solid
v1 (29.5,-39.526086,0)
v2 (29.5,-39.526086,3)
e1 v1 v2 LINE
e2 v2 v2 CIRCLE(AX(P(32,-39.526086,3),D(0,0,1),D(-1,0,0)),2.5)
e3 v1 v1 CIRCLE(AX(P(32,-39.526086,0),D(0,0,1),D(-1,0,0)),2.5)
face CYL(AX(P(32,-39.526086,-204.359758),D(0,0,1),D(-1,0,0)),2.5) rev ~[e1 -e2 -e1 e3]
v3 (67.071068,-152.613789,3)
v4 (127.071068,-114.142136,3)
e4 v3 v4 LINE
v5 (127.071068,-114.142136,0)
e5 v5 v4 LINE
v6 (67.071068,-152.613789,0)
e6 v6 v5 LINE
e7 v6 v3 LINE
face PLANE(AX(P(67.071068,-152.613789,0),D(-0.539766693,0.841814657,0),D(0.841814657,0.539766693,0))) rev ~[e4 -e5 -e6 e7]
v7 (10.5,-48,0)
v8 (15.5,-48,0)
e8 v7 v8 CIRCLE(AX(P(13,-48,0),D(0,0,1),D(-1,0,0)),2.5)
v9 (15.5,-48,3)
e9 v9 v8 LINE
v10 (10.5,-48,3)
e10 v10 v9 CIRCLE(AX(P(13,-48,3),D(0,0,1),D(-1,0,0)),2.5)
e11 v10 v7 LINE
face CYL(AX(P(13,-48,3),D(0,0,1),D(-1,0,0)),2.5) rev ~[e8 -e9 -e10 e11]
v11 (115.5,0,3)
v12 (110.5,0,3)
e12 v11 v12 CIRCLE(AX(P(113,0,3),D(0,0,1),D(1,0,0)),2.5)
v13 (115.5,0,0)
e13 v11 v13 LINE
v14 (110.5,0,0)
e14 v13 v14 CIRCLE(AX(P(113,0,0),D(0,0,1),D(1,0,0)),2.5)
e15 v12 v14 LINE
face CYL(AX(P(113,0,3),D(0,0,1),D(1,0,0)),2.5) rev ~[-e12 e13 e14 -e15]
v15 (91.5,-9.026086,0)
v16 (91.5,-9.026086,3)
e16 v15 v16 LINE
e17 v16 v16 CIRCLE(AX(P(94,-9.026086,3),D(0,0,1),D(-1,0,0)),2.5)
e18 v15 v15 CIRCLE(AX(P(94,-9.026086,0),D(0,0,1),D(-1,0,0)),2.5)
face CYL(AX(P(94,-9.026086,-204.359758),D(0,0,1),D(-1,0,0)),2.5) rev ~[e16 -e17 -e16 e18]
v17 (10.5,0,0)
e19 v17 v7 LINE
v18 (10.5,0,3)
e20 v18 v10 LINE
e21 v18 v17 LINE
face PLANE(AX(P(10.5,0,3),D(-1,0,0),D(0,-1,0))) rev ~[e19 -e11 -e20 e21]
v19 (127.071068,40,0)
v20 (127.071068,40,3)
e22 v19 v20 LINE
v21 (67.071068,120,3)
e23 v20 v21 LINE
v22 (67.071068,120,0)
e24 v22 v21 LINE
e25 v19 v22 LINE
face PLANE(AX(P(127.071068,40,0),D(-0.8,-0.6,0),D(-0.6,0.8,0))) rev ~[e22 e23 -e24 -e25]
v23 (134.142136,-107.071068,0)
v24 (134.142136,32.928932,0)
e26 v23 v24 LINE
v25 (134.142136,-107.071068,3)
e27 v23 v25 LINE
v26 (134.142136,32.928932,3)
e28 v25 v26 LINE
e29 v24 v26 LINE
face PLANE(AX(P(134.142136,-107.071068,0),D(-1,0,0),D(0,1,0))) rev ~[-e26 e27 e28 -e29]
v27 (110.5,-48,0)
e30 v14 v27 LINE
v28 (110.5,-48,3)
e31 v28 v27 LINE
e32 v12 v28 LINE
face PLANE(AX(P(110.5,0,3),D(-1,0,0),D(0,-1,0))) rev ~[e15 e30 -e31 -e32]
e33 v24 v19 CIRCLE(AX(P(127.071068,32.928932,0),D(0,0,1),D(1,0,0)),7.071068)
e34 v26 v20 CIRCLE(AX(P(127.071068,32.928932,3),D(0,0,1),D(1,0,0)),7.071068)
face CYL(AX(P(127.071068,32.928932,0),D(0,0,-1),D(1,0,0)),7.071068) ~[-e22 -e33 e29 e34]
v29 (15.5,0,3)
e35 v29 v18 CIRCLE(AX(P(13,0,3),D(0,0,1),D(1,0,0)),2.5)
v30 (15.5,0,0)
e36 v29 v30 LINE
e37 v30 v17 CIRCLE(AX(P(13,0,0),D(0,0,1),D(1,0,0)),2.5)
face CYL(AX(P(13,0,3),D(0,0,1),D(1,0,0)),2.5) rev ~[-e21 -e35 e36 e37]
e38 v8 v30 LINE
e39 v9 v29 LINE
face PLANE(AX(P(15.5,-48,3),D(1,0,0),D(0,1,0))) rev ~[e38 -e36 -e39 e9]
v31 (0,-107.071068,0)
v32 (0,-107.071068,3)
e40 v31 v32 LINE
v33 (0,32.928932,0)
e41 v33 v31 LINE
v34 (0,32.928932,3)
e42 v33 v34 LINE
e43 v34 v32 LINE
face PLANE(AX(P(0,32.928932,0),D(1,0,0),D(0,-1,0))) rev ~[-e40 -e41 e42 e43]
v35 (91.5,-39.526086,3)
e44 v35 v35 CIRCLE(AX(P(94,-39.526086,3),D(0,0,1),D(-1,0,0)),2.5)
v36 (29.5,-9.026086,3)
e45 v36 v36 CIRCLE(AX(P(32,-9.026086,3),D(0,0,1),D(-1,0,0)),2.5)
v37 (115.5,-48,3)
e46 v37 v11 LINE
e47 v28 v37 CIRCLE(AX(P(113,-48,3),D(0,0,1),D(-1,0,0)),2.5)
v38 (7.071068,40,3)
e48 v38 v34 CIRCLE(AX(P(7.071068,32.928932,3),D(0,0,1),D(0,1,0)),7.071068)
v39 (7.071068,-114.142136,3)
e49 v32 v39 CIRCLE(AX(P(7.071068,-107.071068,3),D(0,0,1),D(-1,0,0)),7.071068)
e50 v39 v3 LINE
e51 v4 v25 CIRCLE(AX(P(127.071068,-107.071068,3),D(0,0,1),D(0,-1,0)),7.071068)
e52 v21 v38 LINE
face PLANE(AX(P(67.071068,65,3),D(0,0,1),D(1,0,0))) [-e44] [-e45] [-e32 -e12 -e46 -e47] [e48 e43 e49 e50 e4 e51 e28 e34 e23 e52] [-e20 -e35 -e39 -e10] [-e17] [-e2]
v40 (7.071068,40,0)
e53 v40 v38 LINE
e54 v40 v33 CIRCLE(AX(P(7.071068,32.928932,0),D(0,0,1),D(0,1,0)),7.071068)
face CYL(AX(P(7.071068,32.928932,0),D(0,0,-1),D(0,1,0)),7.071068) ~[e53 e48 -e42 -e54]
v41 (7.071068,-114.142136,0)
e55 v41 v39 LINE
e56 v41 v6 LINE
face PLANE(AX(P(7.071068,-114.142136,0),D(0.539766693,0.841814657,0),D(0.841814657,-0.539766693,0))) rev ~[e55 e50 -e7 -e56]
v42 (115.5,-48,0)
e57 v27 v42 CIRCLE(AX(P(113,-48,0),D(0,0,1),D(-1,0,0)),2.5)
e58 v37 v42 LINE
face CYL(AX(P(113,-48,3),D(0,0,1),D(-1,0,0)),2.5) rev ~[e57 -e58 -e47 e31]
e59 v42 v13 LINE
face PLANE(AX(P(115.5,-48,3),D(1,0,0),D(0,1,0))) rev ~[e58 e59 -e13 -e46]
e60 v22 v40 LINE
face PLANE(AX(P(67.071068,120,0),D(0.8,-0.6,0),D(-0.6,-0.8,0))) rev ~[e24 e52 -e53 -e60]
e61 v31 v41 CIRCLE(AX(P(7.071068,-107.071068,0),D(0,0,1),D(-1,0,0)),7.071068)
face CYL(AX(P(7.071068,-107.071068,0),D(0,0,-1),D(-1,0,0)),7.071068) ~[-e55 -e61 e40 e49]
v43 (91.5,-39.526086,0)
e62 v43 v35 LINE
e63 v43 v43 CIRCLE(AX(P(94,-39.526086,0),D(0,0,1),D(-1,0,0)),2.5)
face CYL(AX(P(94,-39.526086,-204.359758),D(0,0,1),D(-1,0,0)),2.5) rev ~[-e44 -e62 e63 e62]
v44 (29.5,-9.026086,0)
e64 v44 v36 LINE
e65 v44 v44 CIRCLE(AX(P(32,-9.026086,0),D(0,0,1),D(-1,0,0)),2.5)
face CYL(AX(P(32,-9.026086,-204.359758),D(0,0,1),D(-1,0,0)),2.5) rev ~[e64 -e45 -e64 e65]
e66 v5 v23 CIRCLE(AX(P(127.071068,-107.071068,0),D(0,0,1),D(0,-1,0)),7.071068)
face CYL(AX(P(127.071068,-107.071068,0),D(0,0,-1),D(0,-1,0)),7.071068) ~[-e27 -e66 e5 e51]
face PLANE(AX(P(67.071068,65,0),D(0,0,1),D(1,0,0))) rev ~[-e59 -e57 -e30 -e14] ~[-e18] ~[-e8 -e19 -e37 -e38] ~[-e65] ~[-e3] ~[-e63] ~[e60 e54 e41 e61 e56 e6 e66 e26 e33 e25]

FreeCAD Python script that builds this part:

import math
import FreeCAD as App
import Part
import Sketcher

V = App.Vector
Q = App.Units.Quantity

doc = App.newDocument("Part")
params = doc.addObject("Spreadsheet::Sheet", "Params")
for row, (alias, value) in enumerate([
    ("sketch1_width", "120 mm"),
    ("sketch1_height", "140 mm"),
    ("pad1_length", "3 mm"),
    ("sketch2_diameter", "5 mm"),
    ("hole_diameter", "5 mm"),
    ("sketch3_diameter", "5 mm"),
    ("hole2_diameter", "5 mm"),
    ("sketch4_radius", "2.5 mm"),
    ("sketch4_height", "48 mm"),
    ("pocket1_length", "25 mm"),
    ("sketch5_radius", "2.5 mm"),
    ("sketch5_height", "48 mm"),
    ("pocket2_length", "25 mm"),
    ("sketch6_width", "120 mm"),
    ("sketch6_length", "100 mm"),
    ("pad2_length", "3 mm"),
], start=1):
    params.set(f"A{row}", alias)
    params.set(f"B{row}", "=" + value)
    params.setAlias(f"B{row}", alias)

body = doc.addObject("PartDesign::Body", "Body")

# Sketch on XY plane
sketch1 = doc.addObject("Sketcher::SketchObject", "Sketch")
body.addObject(sketch1)
sketch1.AttachmentSupport = (doc.XY_Plane, [""])
sketch1.MapMode = "FlatFace"
sketch1.addGeometry([
    Part.ArcOfCircle(Part.Circle(V(7.071068, 32.928932, 0), V(0, 0, 1), 7.071068), math.radians(90), math.radians(180)),  # 0
    Part.LineSegment(V(0, 32.928932, 0), V(0, -107.071068, 0)),  # 1
    Part.ArcOfCircle(Part.Circle(V(7.071068, -107.071068, 0), V(0, 0, 1), 7.071068), math.radians(180), math.radians(270)),  # 2
    Part.LineSegment(V(7.071068, -114.142136, 0), V(127.071068, -114.142136, 0)),  # 3
    Part.ArcOfCircle(Part.Circle(V(127.071068, -107.071068, 0), V(0, 0, 1), 7.071068), math.radians(-90), math.radians(0)),  # 4
    Part.LineSegment(V(134.142136, -107.071068, 0), V(134.142136, 32.928932, 0)),  # 5
    Part.ArcOfCircle(Part.Circle(V(127.071068, 32.928932, 0), V(0, 0, 1), 7.071068), math.radians(0), math.radians(90)),  # 6
    Part.LineSegment(V(127.071068, 40, 0), V(7.071068, 40, 0)),  # 7
], False)
sketch1.addConstraint([
    Sketcher.Constraint("Tangent", 0, 2, 1, 1),
    Sketcher.Constraint("Tangent", 1, 2, 2, 1),
    Sketcher.Constraint("Tangent", 2, 2, 3, 1),
    Sketcher.Constraint("Tangent", 3, 2, 4, 1),
    Sketcher.Constraint("Tangent", 4, 2, 5, 1),
    Sketcher.Constraint("Tangent", 5, 2, 6, 1),
    Sketcher.Constraint("Tangent", 6, 2, 7, 1),
    Sketcher.Constraint("Tangent", 7, 2, 0, 1),
    Sketcher.Constraint("Vertical", 1),
    Sketcher.Constraint("Horizontal", 3),
    Sketcher.Constraint("Vertical", 5),
    Sketcher.Constraint("Horizontal", 7),
    Sketcher.Constraint("Equal", 0, 2),
    Sketcher.Constraint("Equal", 2, 4),
    Sketcher.Constraint("Equal", 4, 6),
    Sketcher.Constraint("PointOnObject", 0, 2, -2),
    Sketcher.Constraint("DistanceX", 3, 1, 3, 2, Q("120 mm")),
    Sketcher.Constraint("DistanceY", 1, 2, 1, 1, Q("140 mm")),
    Sketcher.Constraint("DistanceY", -1, 1, 6, 2, Q("40 mm")),
    Sketcher.Constraint("Radius", 0, Q("7.071068 mm")),
])
sketch1.setExpression("Constraints[16]", "Params.sketch1_width")
sketch1.setExpression("Constraints[17]", "Params.sketch1_height")
pad1 = doc.addObject("PartDesign::Pad", "Pad")
body.addObject(pad1)
pad1.Profile = sketch1
pad1.setExpression("Length", "Params.pad1_length")

# Sketch on XY plane
sketch2 = doc.addObject("Sketcher::SketchObject", "Sketch001")
body.addObject(sketch2)
sketch2.AttachmentSupport = (doc.XY_Plane, [""])
sketch2.MapMode = "FlatFace"
sketch2.addGeometry([
    Part.Circle(V(94, -9.026086, 0), V(0, 0, 1), 2.5),
    Part.Circle(V(32, -9.026086, 0), V(0, 0, 1), 2.5),
], False)
sketch2.addConstraint([
    Sketcher.Constraint("Equal", 0, 1),
    Sketcher.Constraint("Horizontal", 0, 3, 1, 3),
    Sketcher.Constraint("Diameter", 0, Q("5 mm")),
    Sketcher.Constraint("DistanceX", -1, 1, 0, 3, Q("94 mm")),
    Sketcher.Constraint("DistanceX", -1, 1, 1, 3, Q("32 mm")),
    Sketcher.Constraint("DistanceY", 0, 3, -1, 1, Q("9.026086 mm")),
])
sketch2.setExpression("Constraints[2]", "Params.sketch2_diameter")
doc.recompute()
hole = doc.addObject("PartDesign::Hole", "Hole")
body.addObject(hole)
hole.Profile = sketch2
hole.ThreadType = "None"
hole.setExpression("Diameter", "Params.hole_diameter")
hole.DepthType = "ThroughAll"
hole.Reversed = True

# Sketch on XY plane
sketch3 = doc.addObject("Sketcher::SketchObject", "Sketch002")
body.addObject(sketch3)
sketch3.AttachmentSupport = (doc.XY_Plane, [""])
sketch3.MapMode = "FlatFace"
sketch3.addGeometry([
    Part.Circle(V(32, -39.526086, 0), V(0, 0, 1), 2.5),
    Part.Circle(V(94, -39.526086, 0), V(0, 0, 1), 2.5),
], False)
sketch3.addConstraint([
    Sketcher.Constraint("Equal", 0, 1),
    Sketcher.Constraint("Horizontal", 0, 3, 1, 3),
    Sketcher.Constraint("Diameter", 0, Q("5 mm")),
    Sketcher.Constraint("DistanceX", -1, 1, 0, 3, Q("32 mm")),
    Sketcher.Constraint("DistanceX", -1, 1, 1, 3, Q("94 mm")),
    Sketcher.Constraint("DistanceY", 0, 3, -1, 1, Q("39.526086 mm")),
])
sketch3.setExpression("Constraints[2]", "Params.sketch3_diameter")
doc.recompute()
hole2 = doc.addObject("PartDesign::Hole", "Hole001")
body.addObject(hole2)
hole2.Profile = sketch3
hole2.ThreadType = "None"
hole2.setExpression("Diameter", "Params.hole2_diameter")
hole2.DepthType = "ThroughAll"
hole2.Reversed = True

# Sketch on XY plane
sketch4 = doc.addObject("Sketcher::SketchObject", "Sketch003")
body.addObject(sketch4)
sketch4.AttachmentSupport = (doc.XY_Plane, [""])
sketch4.MapMode = "FlatFace"
sketch4.AttachmentOffset = App.Placement(V(0, 0, 3), App.Rotation())
sketch4.addGeometry([
    Part.ArcOfCircle(Part.Circle(V(113, 0, 0), V(0, 0, 1), 2.5), math.radians(0), math.radians(180)),
    Part.LineSegment(V(110.5, 0, 0), V(110.5, -48, 0)),
    Part.ArcOfCircle(Part.Circle(V(113, -48, 0), V(0, 0, 1), 2.5), math.radians(180), math.radians(360)),
    Part.LineSegment(V(115.5, -48, 0), V(115.5, 0, 0)),
], False)
sketch4.addConstraint([
    Sketcher.Constraint("Tangent", 0, 2, 1, 1),
    Sketcher.Constraint("Tangent", 1, 2, 2, 1),
    Sketcher.Constraint("Tangent", 2, 2, 3, 1),
    Sketcher.Constraint("Tangent", 3, 2, 0, 1),
    Sketcher.Constraint("Vertical", 1),
    Sketcher.Constraint("Vertical", 3),
    Sketcher.Constraint("PointOnObject", 0, 3, -1),
    Sketcher.Constraint("Radius", 0, Q("2.5 mm")),
    Sketcher.Constraint("DistanceY", 1, 2, 1, 1, Q("48 mm")),
    Sketcher.Constraint("DistanceX", -1, 1, 0, 3, Q("113 mm")),
])
sketch4.setExpression("Constraints[7]", "Params.sketch4_radius")
sketch4.setExpression("Constraints[8]", "Params.sketch4_height")
pocket1 = doc.addObject("PartDesign::Pocket", "Pocket")
body.addObject(pocket1)
pocket1.Profile = sketch4
pocket1.setExpression("Length", "Params.pocket1_length")

# Sketch on XY plane
sketch5 = doc.addObject("Sketcher::SketchObject", "Sketch004")
body.addObject(sketch5)
sketch5.AttachmentSupport = (doc.XY_Plane, [""])
sketch5.MapMode = "FlatFace"
sketch5.AttachmentOffset = App.Placement(V(0, 0, 3), App.Rotation())
sketch5.addGeometry([
    Part.ArcOfCircle(Part.Circle(V(13, 0, 0), V(0, 0, 1), 2.5), math.radians(0), math.radians(180)),
    Part.LineSegment(V(10.5, 0, 0), V(10.5, -48, 0)),
    Part.ArcOfCircle(Part.Circle(V(13, -48, 0), V(0, 0, 1), 2.5), math.radians(180), math.radians(360)),
    Part.LineSegment(V(15.5, -48, 0), V(15.5, 0, 0)),
], False)
sketch5.addConstraint([
    Sketcher.Constraint("Tangent", 0, 2, 1, 1),
    Sketcher.Constraint("Tangent", 1, 2, 2, 1),
    Sketcher.Constraint("Tangent", 2, 2, 3, 1),
    Sketcher.Constraint("Tangent", 3, 2, 0, 1),
    Sketcher.Constraint("Vertical", 1),
    Sketcher.Constraint("Vertical", 3),
    Sketcher.Constraint("PointOnObject", 0, 3, -1),
    Sketcher.Constraint("Radius", 0, Q("2.5 mm")),
    Sketcher.Constraint("DistanceY", 1, 2, 1, 1, Q("48 mm")),
    Sketcher.Constraint("DistanceX", -1, 1, 0, 3, Q("13 mm")),
])
sketch5.setExpression("Constraints[7]", "Params.sketch5_radius")
sketch5.setExpression("Constraints[8]", "Params.sketch5_height")
pocket2 = doc.addObject("PartDesign::Pocket", "Pocket001")
body.addObject(pocket2)
pocket2.Profile = sketch5
pocket2.setExpression("Length", "Params.pocket2_length")

# Sketch on XY plane
sketch6 = doc.addObject("Sketcher::SketchObject", "Sketch005")
body.addObject(sketch6)
sketch6.AttachmentSupport = (doc.XY_Plane, [""])
sketch6.MapMode = "FlatFace"
sketch6.addGeometry([
    Part.LineSegment(V(67.071068, 120, 0), V(7.071068, 40, 0)),  # 0
    Part.LineSegment(V(7.071068, 40, 0), V(127.071068, 40, 0)),  # 1
    Part.LineSegment(V(127.071068, 40, 0), V(67.071068, 120, 0)),  # 2
    Part.LineSegment(V(127.071068, -114.142136, 0), V(7.071068, -114.142136, 0)),  # 3
    Part.LineSegment(V(7.071068, -114.142136, 0), V(67.071068, -152.613789, 0)),  # 4
    Part.LineSegment(V(67.071068, -152.613789, 0), V(127.071068, -114.142136, 0)),  # 5
], False)
sketch6.addConstraint([
    Sketcher.Constraint("Coincident", 0, 2, 1, 1),
    Sketcher.Constraint("Coincident", 1, 2, 2, 1),
    Sketcher.Constraint("Coincident", 2, 2, 0, 1),
    Sketcher.Constraint("Coincident", 3, 2, 4, 1),
    Sketcher.Constraint("Coincident", 4, 2, 5, 1),
    Sketcher.Constraint("Coincident", 5, 2, 3, 1),
    Sketcher.Constraint("Horizontal", 1),
    Sketcher.Constraint("Horizontal", 3),
    Sketcher.Constraint("Vertical", 0, 2, 3, 2),
    Sketcher.Constraint("Vertical", 2, 2, 4, 2),
    Sketcher.Constraint("Vertical", 1, 2, 5, 2),
    Sketcher.Constraint("Equal", 0, 2),
    Sketcher.Constraint("DistanceX", 1, 1, 1, 2, Q("120 mm")),
    Sketcher.Constraint("Distance", 0, Q("100 mm")),
    Sketcher.Constraint("DistanceY", -1, 1, 0, 2, Q("40 mm")),
    Sketcher.Constraint("DistanceY", 4, 2, -1, 1, Q("152.613789 mm")),
    Sketcher.Constraint("Distance", 4, Q("71.274596 mm")),
    Sketcher.Constraint("DistanceX", -1, 1, 0, 2, Q("7.071068 mm")),
])
sketch6.setExpression("Constraints[12]", "Params.sketch6_width")
sketch6.setExpression("Constraints[13]", "Params.sketch6_length")
pad2 = doc.addObject("PartDesign::Pad", "Pad001")
body.addObject(pad2)
pad2.Profile = sketch6
pad2.setExpression("Length", "Params.pad2_length")

doc.recompute()
